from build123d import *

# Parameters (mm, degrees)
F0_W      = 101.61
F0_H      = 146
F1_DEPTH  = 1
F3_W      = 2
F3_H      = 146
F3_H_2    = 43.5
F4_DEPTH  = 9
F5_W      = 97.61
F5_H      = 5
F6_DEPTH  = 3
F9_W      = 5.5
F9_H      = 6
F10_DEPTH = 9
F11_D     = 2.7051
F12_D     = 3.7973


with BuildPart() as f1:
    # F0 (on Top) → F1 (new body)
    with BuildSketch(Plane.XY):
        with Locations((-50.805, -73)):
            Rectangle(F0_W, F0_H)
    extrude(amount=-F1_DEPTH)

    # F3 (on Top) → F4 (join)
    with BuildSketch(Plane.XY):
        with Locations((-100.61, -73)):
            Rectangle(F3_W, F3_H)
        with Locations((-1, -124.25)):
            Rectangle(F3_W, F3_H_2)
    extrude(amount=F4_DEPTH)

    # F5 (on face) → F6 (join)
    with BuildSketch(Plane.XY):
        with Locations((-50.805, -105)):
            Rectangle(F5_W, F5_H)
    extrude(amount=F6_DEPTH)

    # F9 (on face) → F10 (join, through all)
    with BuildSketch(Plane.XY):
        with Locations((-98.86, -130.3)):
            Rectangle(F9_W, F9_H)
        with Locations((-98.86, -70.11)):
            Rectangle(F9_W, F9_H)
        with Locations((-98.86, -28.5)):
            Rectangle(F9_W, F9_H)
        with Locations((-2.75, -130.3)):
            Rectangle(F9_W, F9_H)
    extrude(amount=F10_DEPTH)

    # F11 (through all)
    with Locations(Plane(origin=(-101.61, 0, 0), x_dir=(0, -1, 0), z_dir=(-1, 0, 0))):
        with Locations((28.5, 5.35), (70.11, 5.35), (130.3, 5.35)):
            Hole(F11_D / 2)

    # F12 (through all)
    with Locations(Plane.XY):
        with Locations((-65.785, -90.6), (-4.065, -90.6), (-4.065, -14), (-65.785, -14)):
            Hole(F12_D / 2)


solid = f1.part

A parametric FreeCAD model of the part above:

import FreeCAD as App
import Part
import Sketcher

V = App.Vector
Q = App.Units.Quantity


def add_polygon(sketch, points):
    """Adds a closed chain of lines whose ends are joined by coincident constraints."""
    first, n = sketch.GeometryCount, len(points)
    for a, b in zip(points, points[1:] + points[:1]):
        sketch.addGeometry(Part.LineSegment(App.Vector(*a, 0), App.Vector(*b, 0)), False)
    for i in range(n):
        sketch.addConstraint(Sketcher.Constraint("Coincident", first + i, 2, first + (i + 1) % n, 1))

doc = App.newDocument("Part")
params = doc.addObject("Spreadsheet::Sheet", "Params")
for row, (alias, value) in enumerate([
    ("sketch1_height", "146 mm"),
    ("sketch1_width", "101.61 mm"),
    ("pad1_length", "1 mm"),
    ("sketch2_width", "2 mm"),
    ("sketch2_height", "146 mm"),
    ("sketch2_height2", "43.5 mm"),
    ("pad2_length", "9 mm"),
    ("sketch3_height", "5 mm"),
    ("sketch3_width", "97.61 mm"),
    ("pad3_length", "3 mm"),
    ("sketch4_height", "6 mm"),
    ("sketch4_width", "5.5 mm"),
    ("pad4_length", "9 mm"),
    ("hole_diameter", "2.7051 mm"),
    ("hole2_diameter", "3.7973 mm"),
], start=1):
    params.set(f"A{row}", alias)
    params.set(f"B{row}", "=" + value)
    params.setAlias(f"B{row}", alias)

body = doc.addObject("PartDesign::Body", "Body")

sketch1 = doc.addObject("Sketcher::SketchObject", "Sketch")
body.addObject(sketch1)
sketch1.AttachmentSupport = (doc.XY_Plane, [""])
sketch1.MapMode = "FlatFace"
add_polygon(sketch1, [(-102, 0), (-102, -146), (0, -146), (0, 0)])
sketch1.addConstraint(Sketcher.Constraint("Vertical", 0))
sketch1.addConstraint(Sketcher.Constraint("Horizontal", 1))
sketch1.addConstraint(Sketcher.Constraint("Vertical", 2))
sketch1.addConstraint(Sketcher.Constraint("Horizontal", 3))
sketch1.addConstraint(Sketcher.Constraint("Coincident", 2, 2, -1, 1))
sketch1.addConstraint(Sketcher.Constraint("DistanceY", 0, 2, 0, 1, Q("146 mm")))
sketch1.addConstraint(Sketcher.Constraint("DistanceX", 1, 1, 1, 2, Q("101.61 mm")))
sketch1.setExpression("Constraints[9]", "Params.sketch1_height")
sketch1.setExpression("Constraints[10]", "Params.sketch1_width")
pad1 = doc.addObject("PartDesign::Pad", "Pad")
body.addObject(pad1)
pad1.Profile = sketch1
pad1.setExpression("Length", "Params.pad1_length")
pad1.Reversed = True

sketch2 = doc.addObject("Sketcher::SketchObject", "Sketch001")
body.addObject(sketch2)
sketch2.AttachmentSupport = (doc.XY_Plane, [""])
sketch2.MapMode = "FlatFace"
add_polygon(sketch2, [(-101.6, 0), (-101.6, -146), (-99.6, -146), (-99.6, 0)])
add_polygon(sketch2, [(-2, -102.5), (-2, -146), (0, -146), (0, -102.5)])
sketch2.addConstraint(Sketcher.Constraint("Vertical", 0))
sketch2.addConstraint(Sketcher.Constraint("Horizontal", 1))
sketch2.addConstraint(Sketcher.Constraint("Vertical", 2))
sketch2.addConstraint(Sketcher.Constraint("Horizontal", 3))
sketch2.addConstraint(Sketcher.Constraint("Vertical", 4))
sketch2.addConstraint(Sketcher.Constraint("Horizontal", 5))
sketch2.addConstraint(Sketcher.Constraint("Vertical", 6))
sketch2.addConstraint(Sketcher.Constraint("Horizontal", 7))
sketch2.addConstraint(Sketcher.Constraint("PointOnObject", 2, 2, -1))
sketch2.addConstraint(Sketcher.Constraint("PointOnObject", 5, 2, -2))
sketch2.addConstraint(Sketcher.Constraint("Horizontal", 1, 2, 4, 2))
sketch2.addConstraint(Sketcher.Constraint("Equal", 3, 5))
sketch2.addConstraint(Sketcher.Constraint("DistanceX", 1, 1, 1, 2, Q("2 mm")))
sketch2.addConstraint(Sketcher.Constraint("DistanceY", 0, 2, 0, 1, Q("146 mm")))
sketch2.addConstraint(Sketcher.Constraint("DistanceY", 4, 2, 4, 1, Q("43.5 mm")))
sketch2.addConstraint(Sketcher.Constraint("DistanceX", 0, 2, -1, 1, Q("101.61 mm")))
sketch2.setExpression("Constraints[20]", "Params.sketch2_width")
sketch2.setExpression("Constraints[21]", "Params.sketch2_height")
sketch2.setExpression("Constraints[22]", "Params.sketch2_height2")
pad2 = doc.addObject("PartDesign::Pad", "Pad001")
body.addObject(pad2)
pad2.Profile = sketch2
pad2.setExpression("Length", "Params.pad2_length")

sketch3 = doc.addObject("Sketcher::SketchObject", "Sketch002")
body.addObject(sketch3)
sketch3.AttachmentSupport = (doc.XY_Plane, [""])
sketch3.MapMode = "FlatFace"
add_polygon(sketch3, [(-100, -102), (-100, -108), (-2, -108), (-2, -102)])
sketch3.addConstraint(Sketcher.Constraint("Vertical", 0))
sketch3.addConstraint(Sketcher.Constraint("Horizontal", 1))
sketch3.addConstraint(Sketcher.Constraint("Vertical", 2))
sketch3.addConstraint(Sketcher.Constraint("Horizontal", 3))
sketch3.addConstraint(Sketcher.Constraint("DistanceY", 0, 2, 0, 1, Q("5 mm")))
sketch3.addConstraint(Sketcher.Constraint("DistanceX", 1, 2, -1, 1, Q("2 mm")))
sketch3.addConstraint(Sketcher.Constraint("DistanceX", 1, 1, 1, 2, Q("97.61 mm")))
sketch3.addConstraint(Sketcher.Constraint("DistanceY", 0, 2, -1, 1, Q("107.5 mm")))
sketch3.setExpression("Constraints[8]", "Params.sketch3_height")
sketch3.setExpression("Constraints[10]", "Params.sketch3_width")
pad3 = doc.addObject("PartDesign::Pad", "Pad002")
body.addObject(pad3)
pad3.Profile = sketch3
pad3.setExpression("Length", "Params.pad3_length")

sketch4 = doc.addObject("Sketcher::SketchObject", "Sketch003")
body.addObject(sketch4)
sketch4.AttachmentSupport = (doc.XY_Plane, [""])
sketch4.MapMode = "FlatFace"
add_polygon(sketch4, [(-102, -127), (-102, -133), (-96, -133), (-96, -127)])
add_polygon(sketch4, [(-102, -67), (-102, -73), (-96, -73), (-96, -67)])
add_polygon(sketch4, [(-102, -26), (-102, -32), (-96, -32), (-96, -26)])
add_polygon(sketch4, [(-6, -127), (-6, -133), (0, -133), (0, -127)])
sketch4.addConstraint(Sketcher.Constraint("Vertical", 0))
sketch4.addConstraint(Sketcher.Constraint("Horizontal", 1))
sketch4.addConstraint(Sketcher.Constraint("Vertical", 2))
sketch4.addConstraint(Sketcher.Constraint("Horizontal", 3))
sketch4.addConstraint(Sketcher.Constraint("Vertical", 4))
sketch4.addConstraint(Sketcher.Constraint("Horizontal", 5))
sketch4.addConstraint(Sketcher.Constraint("Vertical", 6))
sketch4.addConstraint(Sketcher.Constraint("Horizontal", 7))
sketch4.addConstraint(Sketcher.Constraint("Vertical", 8))
sketch4.addConstraint(Sketcher.Constraint("Horizontal", 9))
sketch4.addConstraint(Sketcher.Constraint("Vertical", 10))
sketch4.addConstraint(Sketcher.Constraint("Horizontal", 11))
sketch4.addConstraint(Sketcher.Constraint("Vertical", 12))
sketch4.addConstraint(Sketcher.Constraint("Horizontal", 13))
sketch4.addConstraint(Sketcher.Constraint("Vertical", 14))
sketch4.addConstraint(Sketcher.Constraint("Horizontal", 15))
sketch4.addConstraint(Sketcher.Constraint("PointOnObject", 13, 2, -2))
sketch4.addConstraint(Sketcher.Constraint("Horizontal", 1, 2, 12, 2))
sketch4.addConstraint(Sketcher.Constraint("Horizontal", 3, 2, 14, 2))
sketch4.addConstraint(Sketcher.Constraint("Vertical", 3, 2, 4, 2))
sketch4.addConstraint(Sketcher.Constraint("Vertical", 2, 2, 5, 2))
sketch4.addConstraint(Sketcher.Constraint("Vertical", 7, 2, 8, 2))
sketch4.addConstraint(Sketcher.Constraint("Vertical", 6, 2, 9, 2))
sketch4.addConstraint(Sketcher.Constraint("Equal", 11, 13))
sketch4.addConstraint(Sketcher.Constraint("Equal", 2, 4))
sketch4.addConstraint(Sketcher.Constraint("Equal", 6, 8))
sketch4.addConstraint(Sketcher.Constraint("DistanceY", 0, 2, 0, 1, Q("6 mm")))
sketch4.addConstraint(Sketcher.Constraint("DistanceX", 1, 1, 1, 2, Q("5.5 mm")))
sketch4.addConstraint(Sketcher.Constraint("DistanceY", 0, 2, -1, 1, Q("133.3 mm")))
sketch4.addConstraint(Sketcher.Constraint("DistanceY", 8, 2, -1, 1, Q("31.5 mm")))
sketch4.addConstraint(Sketcher.Constraint("DistanceX", 0, 2, -1, 1, Q("101.61 mm")))
sketch4.addConstraint(Sketcher.Constraint("DistanceY", 4, 2, -1, 1, Q("73.11 mm")))
sketch4.setExpression("Constraints[42]", "Params.sketch4_height")
sketch4.setExpression("Constraints[43]", "Params.sketch4_width")
pad4 = doc.addObject("PartDesign::Pad", "Pad003")
body.addObject(pad4)
pad4.Profile = sketch4
pad4.setExpression("Length", "Params.pad4_length")

sketch5 = doc.addObject("Sketcher::SketchObject", "Sketch004")
body.addObject(sketch5)
sketch5.AttachmentSupport = (doc.YZ_Plane, [""])
sketch5.MapMode = "FlatFace"
sketch5.AttachmentOffset = App.Placement(V(0, 0, -101.61), App.Rotation())
sketch5.addGeometry(Part.Circle(V(-28.5, 5.3, 0), V(0, 0, 1), 1.4), False)
sketch5.addGeometry(Part.Circle(V(-70.1, 5.3, 0), V(0, 0, 1), 1.4), False)
sketch5.addGeometry(Part.Circle(V(-130.3, 5.3, 0), V(0, 0, 1), 1.4), False)
sketch5.addConstraint(Sketcher.Constraint("Equal", 0, 1))
sketch5.addConstraint(Sketcher.Constraint("Equal", 1, 2))
sketch5.addConstraint(Sketcher.Constraint("Horizontal", 0, 3, 1, 3))
sketch5.addConstraint(Sketcher.Constraint("Horizontal", 1, 3, 2, 3))
sketch5.addConstraint(Sketcher.Constraint("Diameter", 0, Q("2.7051 mm")))
sketch5.addConstraint(Sketcher.Constraint("DistanceX", 0, 3, -1, 1, Q("28.5 mm")))
sketch5.addConstraint(Sketcher.Constraint("DistanceX", 2, 3, -1, 1, Q("130.3 mm")))
sketch5.addConstraint(Sketcher.Constraint("DistanceY", -1, 1, 0, 3, Q("5.35 mm")))
sketch5.addConstraint(Sketcher.Constraint("DistanceX", 1, 3, -1, 1, Q("70.11 mm")))
doc.recompute()
hole = doc.addObject("PartDesign::Hole", "Hole")
body.addObject(hole)
hole.Profile = sketch5
hole.ThreadType = "None"
hole.setExpression("Diameter", "Params.hole_diameter")
hole.DepthType = "ThroughAll"
hole.Reversed = True

sketch6 = doc.addObject("Sketcher::SketchObject", "Sketch005")
body.addObject(sketch6)
sketch6.AttachmentSupport = (doc.XY_Plane, [""])
sketch6.MapMode = "FlatFace"
sketch6.addGeometry(Part.Circle(V(-65.8, -90.6, 0), V(0, 0, 1), 1.9), False)
sketch6.addGeometry(Part.Circle(V(-4.1, -90.6, 0), V(0, 0, 1), 1.9), False)
sketch6.addGeometry(Part.Circle(V(-4.1, -14, 0), V(0, 0, 1), 1.9), False)
sketch6.addGeometry(Part.Circle(V(-65.8, -14, 0), V(0, 0, 1), 1.9), False)
sketch6.addConstraint(Sketcher.Constraint("Equal", 0, 1))
sketch6.addConstraint(Sketcher.Constraint("Equal", 1, 2))
sketch6.addConstraint(Sketcher.Constraint("Equal", 2, 3))
sketch6.addConstraint(Sketcher.Constraint("Horizontal", 0, 3, 1, 3))
sketch6.addConstraint(Sketcher.Constraint("Horizontal", 2, 3, 3, 3))
sketch6.addConstraint(Sketcher.Constraint("Vertical", 1, 3, 2, 3))
sketch6.addConstraint(Sketcher.Constraint("Vertical", 0, 3, 3, 3))
sketch6.addConstraint(Sketcher.Constraint("DistanceY", 2, 3, -1, 1, Q("14 mm")))
sketch6.addConstraint(Sketcher.Constraint("Diameter", 0, Q("3.7973 mm")))
sketch6.addConstraint(Sketcher.Constraint("DistanceY", 0, 3, -1, 1, Q("90.6 mm")))
sketch6.addConstraint(Sketcher.Constraint("DistanceX", 0, 3, 1, 3, Q("61.72 mm")))
sketch6.addConstraint(Sketcher.Constraint("DistanceX", 0, 3, -1, 1, Q("65.785 mm")))
doc.recompute()
hole2 = doc.addObject("PartDesign::Hole", "Hole001")
body.addObject(hole2)
hole2.Profile = sketch6
hole2.ThreadType = "None"
hole2.setExpression("Diameter", "Params.hole2_diameter")
hole2.DepthType = "ThroughAll"

doc.recompute()
